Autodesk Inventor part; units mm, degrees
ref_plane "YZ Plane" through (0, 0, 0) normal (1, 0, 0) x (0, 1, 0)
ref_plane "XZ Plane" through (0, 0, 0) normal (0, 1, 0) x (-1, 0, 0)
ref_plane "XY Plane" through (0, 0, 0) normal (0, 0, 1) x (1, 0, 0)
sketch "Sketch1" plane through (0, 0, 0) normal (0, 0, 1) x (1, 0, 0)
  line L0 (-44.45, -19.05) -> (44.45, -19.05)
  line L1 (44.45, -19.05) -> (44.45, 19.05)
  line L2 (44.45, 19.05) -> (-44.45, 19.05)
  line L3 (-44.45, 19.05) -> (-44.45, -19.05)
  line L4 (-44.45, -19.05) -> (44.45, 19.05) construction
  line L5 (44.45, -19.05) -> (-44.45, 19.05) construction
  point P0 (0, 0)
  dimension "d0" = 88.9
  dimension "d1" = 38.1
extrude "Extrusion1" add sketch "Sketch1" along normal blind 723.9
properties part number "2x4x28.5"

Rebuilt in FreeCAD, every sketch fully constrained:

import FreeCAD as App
import Part
import Sketcher
Q = App.Units.Quantity

doc = App.newDocument("Part")
body = doc.addObject("PartDesign::Body", "Body")

# Sketch on XY plane
sketch1 = doc.addObject("Sketcher::SketchObject", "Sketch")
body.addObject(sketch1)
sketch1.AttachmentSupport = (doc.XY_Plane, [""])
sketch1.MapMode = "FlatFace"
sketch1.addGeometry(Part.LineSegment(App.Vector(-44.45, 19.05, 0), App.Vector(-44.45, -19.05, 0)), False)
sketch1.addGeometry(Part.LineSegment(App.Vector(-44.45, -19.05, 0), App.Vector(44.45, -19.05, 0)), False)
sketch1.addGeometry(Part.LineSegment(App.Vector(44.45, -19.05, 0), App.Vector(44.45, 19.05, 0)), False)
sketch1.addGeometry(Part.LineSegment(App.Vector(44.45, 19.05, 0), App.Vector(-44.45, 19.05, 0)), False)
sketch1.addConstraint(Sketcher.Constraint("Coincident", 0, 2, 1, 1))
sketch1.addConstraint(Sketcher.Constraint("Coincident", 1, 2, 2, 1))
sketch1.addConstraint(Sketcher.Constraint("Coincident", 2, 2, 3, 1))
sketch1.addConstraint(Sketcher.Constraint("Coincident", 3, 2, 0, 1))
sketch1.addConstraint(Sketcher.Constraint("Vertical", 0))
sketch1.addConstraint(Sketcher.Constraint("Horizontal", 1))
sketch1.addConstraint(Sketcher.Constraint("Vertical", 2))
sketch1.addConstraint(Sketcher.Constraint("Horizontal", 3))
sketch1.addConstraint(Sketcher.Constraint("Symmetric", 0, 2, 2, 2, -1, 1))
sketch1.addConstraint(Sketcher.Constraint("DistanceX", 1, 1, 1, 2, Q("3.5 in")))
sketch1.addConstraint(Sketcher.Constraint("DistanceY", 0, 2, 0, 1, Q("1.5 in")))
pad1 = doc.addObject("PartDesign::Pad", "Pad")
body.addObject(pad1)
pad1.Profile = sketch1
pad1.Length = Q("28.5 in")

doc.recompute()
